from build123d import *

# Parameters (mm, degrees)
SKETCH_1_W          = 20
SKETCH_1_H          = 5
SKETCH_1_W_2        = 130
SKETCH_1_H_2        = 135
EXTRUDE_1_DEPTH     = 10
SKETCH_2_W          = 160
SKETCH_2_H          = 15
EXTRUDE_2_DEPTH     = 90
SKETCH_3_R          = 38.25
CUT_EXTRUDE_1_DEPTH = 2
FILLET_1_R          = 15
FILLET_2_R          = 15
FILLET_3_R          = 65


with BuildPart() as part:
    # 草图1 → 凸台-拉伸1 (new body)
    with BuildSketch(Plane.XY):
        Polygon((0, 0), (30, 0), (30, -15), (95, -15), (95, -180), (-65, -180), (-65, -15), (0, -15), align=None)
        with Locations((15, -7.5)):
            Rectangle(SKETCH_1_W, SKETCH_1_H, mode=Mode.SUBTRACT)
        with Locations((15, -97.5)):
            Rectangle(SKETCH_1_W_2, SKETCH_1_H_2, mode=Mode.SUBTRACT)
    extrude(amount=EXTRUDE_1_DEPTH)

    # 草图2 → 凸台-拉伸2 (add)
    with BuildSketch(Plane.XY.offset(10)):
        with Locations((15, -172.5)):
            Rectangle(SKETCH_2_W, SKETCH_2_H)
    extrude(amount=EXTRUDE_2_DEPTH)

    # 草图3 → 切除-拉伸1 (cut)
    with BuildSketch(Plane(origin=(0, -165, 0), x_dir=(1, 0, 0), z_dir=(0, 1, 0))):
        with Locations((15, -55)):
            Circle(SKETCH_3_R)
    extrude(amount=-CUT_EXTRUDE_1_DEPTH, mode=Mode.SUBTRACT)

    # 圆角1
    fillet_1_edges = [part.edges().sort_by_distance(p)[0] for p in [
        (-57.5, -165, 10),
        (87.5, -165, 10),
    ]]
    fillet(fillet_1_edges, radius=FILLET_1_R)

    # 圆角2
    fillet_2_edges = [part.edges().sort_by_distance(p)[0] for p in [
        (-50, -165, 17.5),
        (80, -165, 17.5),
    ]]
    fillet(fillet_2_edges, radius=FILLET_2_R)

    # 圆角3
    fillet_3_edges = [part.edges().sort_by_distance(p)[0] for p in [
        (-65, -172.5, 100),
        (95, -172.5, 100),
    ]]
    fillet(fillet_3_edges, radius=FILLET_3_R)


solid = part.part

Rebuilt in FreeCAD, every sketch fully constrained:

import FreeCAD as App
import Part
import Sketcher


def edges_at(feature, points):
    """Names of the edges that pass closest to the given points."""
    edges = feature.Shape.Edges
    near = lambda p: min(range(len(edges)), key=lambda i: edges[i].distToShape(Part.Vertex(*p))[0])
    return sorted({f"Edge{near(p) + 1}" for p in points})

doc = App.newDocument("Part")
params = doc.addObject("Spreadsheet::Sheet", "Params")
for row, (alias, value) in enumerate([
    ("sketch1_width", "30 mm"),
    ("sketch1_width2", "65 mm"),
    ("sketch1_width3", "130 mm"),
    ("sketch1_width4", "20 mm"),
    ("sketch1_height", "15 mm"),
    ("pad1_length", "10 mm"),
    ("sketch2_width", "160 mm"),
    ("sketch2_height", "15 mm"),
    ("pad2_length", "90 mm"),
    ("sketch3_diameter", "76.5 mm"),
    ("pocket1_length", "2 mm"),
    ("fillet_radius", "15 mm"),
    ("fillet2_radius", "15 mm"),
    ("fillet3_radius", "65 mm"),
], start=1):
    params.set(f"A{row}", alias)
    params.set(f"B{row}", "=" + value)
    params.setAlias(f"B{row}", alias)

body = doc.addObject("PartDesign::Body", "Body")

sketch1 = doc.addObject("Sketcher::SketchObject", "Sketch")
body.addObject(sketch1)
sketch1.AttachmentSupport = (doc.XY_Plane, [""])
sketch1.MapMode = "FlatFace"
sketch1.addGeometry([
    Part.LineSegment(App.Vector(30, 0, 0), App.Vector(0, 0, 0)),
    Part.LineSegment(App.Vector(0, 0, 0), App.Vector(0, -15, 0)),
    Part.LineSegment(App.Vector(0, -15, 0), App.Vector(-65, -15, 0)),
    Part.LineSegment(App.Vector(-65, -15, 0), App.Vector(-65, -180, 0)),
    Part.LineSegment(App.Vector(-65, -180, 0), App.Vector(95, -180, 0)),
    Part.LineSegment(App.Vector(95, -180, 0), App.Vector(95, -15, 0)),
    Part.LineSegment(App.Vector(95, -15, 0), App.Vector(30, -15, 0)),
    Part.LineSegment(App.Vector(30, -15, 0), App.Vector(30, 0, 0)),
    Part.LineSegment(App.Vector(-50, -165, 0), App.Vector(-50, -30, 0)),
    Part.LineSegment(App.Vector(-50, -30, 0), App.Vector(80, -30, 0)),
    Part.LineSegment(App.Vector(80, -30, 0), App.Vector(80, -165, 0)),
    Part.LineSegment(App.Vector(80, -165, 0), App.Vector(-50, -165, 0)),
    Part.LineSegment(App.Vector(5, -10, 0), App.Vector(5, -5, 0)),
    Part.LineSegment(App.Vector(5, -5, 0), App.Vector(25, -5, 0)),
    Part.LineSegment(App.Vector(25, -5, 0), App.Vector(25, -10, 0)),
    Part.LineSegment(App.Vector(25, -10, 0), App.Vector(5, -10, 0)),
], False)
sketch1.addConstraint([
    Sketcher.Constraint("Coincident", 0, 2, 1, 1),
    Sketcher.Constraint("Coincident", 1, 2, 2, 1),
    Sketcher.Constraint("Coincident", 2, 2, 3, 1),
    Sketcher.Constraint("Coincident", 3, 2, 4, 1),
    Sketcher.Constraint("Coincident", 4, 2, 5, 1),
    Sketcher.Constraint("Coincident", 5, 2, 6, 1),
    Sketcher.Constraint("Coincident", 6, 2, 7, 1),
    Sketcher.Constraint("Coincident", 7, 2, 0, 1),
    Sketcher.Constraint("Coincident", 8, 2, 9, 1),
    Sketcher.Constraint("Coincident", 9, 2, 10, 1),
    Sketcher.Constraint("Coincident", 10, 2, 11, 1),
    Sketcher.Constraint("Coincident", 11, 2, 8, 1),
    Sketcher.Constraint("Coincident", 12, 2, 13, 1),
    Sketcher.Constraint("Coincident", 13, 2, 14, 1),
    Sketcher.Constraint("Coincident", 14, 2, 15, 1),
    Sketcher.Constraint("Coincident", 15, 2, 12, 1),
    Sketcher.Constraint("Horizontal", 0),
    Sketcher.Constraint("Vertical", 1),
    Sketcher.Constraint("Horizontal", 2),
    Sketcher.Constraint("Vertical", 3),
    Sketcher.Constraint("Horizontal", 4),
    Sketcher.Constraint("Vertical", 5),
    Sketcher.Constraint("Horizontal", 6),
    Sketcher.Constraint("Vertical", 7),
    Sketcher.Constraint("Vertical", 8),
    Sketcher.Constraint("Horizontal", 9),
    Sketcher.Constraint("Vertical", 10),
    Sketcher.Constraint("Horizontal", 11),
    Sketcher.Constraint("Vertical", 12),
    Sketcher.Constraint("Horizontal", 13),
    Sketcher.Constraint("Vertical", 14),
    Sketcher.Constraint("Horizontal", 15),
    Sketcher.Constraint("Coincident", 0, 2, -1, 1),
    Sketcher.Constraint("Horizontal", 2, 2, 5, 2),
    Sketcher.Constraint("Equal", 2, 6),
    Sketcher.Constraint("DistanceX", 0, 2, 0, 1, 30.0),
    Sketcher.Constraint("DistanceX", 2, 2, 2, 1, 65.0),
    Sketcher.Constraint("DistanceX", 9, 1, 9, 2, 130.0),
    Sketcher.Constraint("DistanceX", 13, 1, 13, 2, 20.0),
    Sketcher.Constraint("DistanceY", 1, 2, 1, 1, 15.0),
    Sketcher.Constraint("DistanceY", 3, 2, 3, 1, 165.0),
    Sketcher.Constraint("DistanceY", 8, 1, 8, 2, 135.0),
    Sketcher.Constraint("DistanceY", 12, 1, 12, 2, 5.0),
    Sketcher.Constraint("DistanceX", 8, 2, -1, 1, 50.0),
    Sketcher.Constraint("DistanceY", 8, 2, -1, 1, 30.0),
    Sketcher.Constraint("DistanceX", -1, 1, 12, 2, 5.0),
    Sketcher.Constraint("DistanceY", 12, 2, -1, 1, 5.0),
])
sketch1.setExpression("Constraints[35]", "Params.sketch1_width")
sketch1.setExpression("Constraints[36]", "Params.sketch1_width2")
sketch1.setExpression("Constraints[37]", "Params.sketch1_width3")
sketch1.setExpression("Constraints[38]", "Params.sketch1_width4")
sketch1.setExpression("Constraints[39]", "Params.sketch1_height")
pad1 = doc.addObject("PartDesign::Pad", "Pad")
body.addObject(pad1)
pad1.Profile = sketch1
pad1.setExpression("Length", "Params.pad1_length")

sketch2 = doc.addObject("Sketcher::SketchObject", "Sketch001")
body.addObject(sketch2)
sketch2.AttachmentSupport = (doc.XY_Plane, [""])
sketch2.MapMode = "FlatFace"
sketch2.AttachmentOffset = App.Placement(App.Vector(0, 0, 10), App.Rotation())
sketch2.addGeometry([
    Part.LineSegment(App.Vector(-65, -165, 0), App.Vector(-65, -180, 0)),
    Part.LineSegment(App.Vector(-65, -180, 0), App.Vector(95, -180, 0)),
    Part.LineSegment(App.Vector(95, -180, 0), App.Vector(95, -165, 0)),
    Part.LineSegment(App.Vector(95, -165, 0), App.Vector(-65, -165, 0)),
], False)
sketch2.addConstraint([
    Sketcher.Constraint("Coincident", 0, 2, 1, 1),
    Sketcher.Constraint("Coincident", 1, 2, 2, 1),
    Sketcher.Constraint("Coincident", 2, 2, 3, 1),
    Sketcher.Constraint("Coincident", 3, 2, 0, 1),
    Sketcher.Constraint("Vertical", 0),
    Sketcher.Constraint("Horizontal", 1),
    Sketcher.Constraint("Vertical", 2),
    Sketcher.Constraint("Horizontal", 3),
    Sketcher.Constraint("DistanceX", 1, 1, 1, 2, 160.0),
    Sketcher.Constraint("DistanceY", 0, 2, 0, 1, 15.0),
    Sketcher.Constraint("DistanceX", 0, 2, -1, 1, 65.0),
    Sketcher.Constraint("DistanceY", 0, 2, -1, 1, 180.0),
])
sketch2.setExpression("Constraints[8]", "Params.sketch2_width")
sketch2.setExpression("Constraints[9]", "Params.sketch2_height")
pad2 = doc.addObject("PartDesign::Pad", "Pad001")
body.addObject(pad2)
pad2.Profile = sketch2
pad2.setExpression("Length", "Params.pad2_length")

sketch3 = doc.addObject("Sketcher::SketchObject", "Sketch002")
body.addObject(sketch3)
sketch3.AttachmentSupport = (doc.XZ_Plane, [""])
sketch3.MapMode = "FlatFace"
sketch3.AttachmentOffset = App.Placement(App.Vector(0, 0, 165), App.Rotation())
sketch3.addGeometry(Part.Circle(App.Vector(15, 55, 0), App.Vector(0, 0, 1), 38), False)
sketch3.addConstraint([
    Sketcher.Constraint("Diameter", 0, 76.5),
    Sketcher.Constraint("DistanceX", -1, 1, 0, 3, 15.0),
    Sketcher.Constraint("DistanceY", -1, 1, 0, 3, 55.0),
])
sketch3.setExpression("Constraints[0]", "Params.sketch3_diameter")
pocket1 = doc.addObject("PartDesign::Pocket", "Pocket")
body.addObject(pocket1)
pocket1.Profile = sketch3
pocket1.setExpression("Length", "Params.pocket1_length")
pocket1.Reversed = True
doc.recompute()

fillet = doc.addObject("PartDesign::Fillet", "Fillet")
body.addObject(fillet)
fillet.Base = (pocket1, edges_at(pocket1, [(-57.5, -165, 10), (87.5, -165, 10)]))
fillet.setExpression("Radius", "Params.fillet_radius")
doc.recompute()

fillet2 = doc.addObject("PartDesign::Fillet", "Fillet001")
body.addObject(fillet2)
fillet2.Base = (fillet, edges_at(fillet, [(-50, -165, 12.5), (80, -165, 12.5)]))
fillet2.setExpression("Radius", "Params.fillet2_radius")
doc.recompute()

fillet3 = doc.addObject("PartDesign::Fillet", "Fillet002")
body.addObject(fillet3)
fillet3.Base = (fillet2, edges_at(fillet2, [(-65, -172.5, 100), (95, -172.5, 100)]))
fillet3.setExpression("Radius", "Params.fillet3_radius")

doc.recompute()
